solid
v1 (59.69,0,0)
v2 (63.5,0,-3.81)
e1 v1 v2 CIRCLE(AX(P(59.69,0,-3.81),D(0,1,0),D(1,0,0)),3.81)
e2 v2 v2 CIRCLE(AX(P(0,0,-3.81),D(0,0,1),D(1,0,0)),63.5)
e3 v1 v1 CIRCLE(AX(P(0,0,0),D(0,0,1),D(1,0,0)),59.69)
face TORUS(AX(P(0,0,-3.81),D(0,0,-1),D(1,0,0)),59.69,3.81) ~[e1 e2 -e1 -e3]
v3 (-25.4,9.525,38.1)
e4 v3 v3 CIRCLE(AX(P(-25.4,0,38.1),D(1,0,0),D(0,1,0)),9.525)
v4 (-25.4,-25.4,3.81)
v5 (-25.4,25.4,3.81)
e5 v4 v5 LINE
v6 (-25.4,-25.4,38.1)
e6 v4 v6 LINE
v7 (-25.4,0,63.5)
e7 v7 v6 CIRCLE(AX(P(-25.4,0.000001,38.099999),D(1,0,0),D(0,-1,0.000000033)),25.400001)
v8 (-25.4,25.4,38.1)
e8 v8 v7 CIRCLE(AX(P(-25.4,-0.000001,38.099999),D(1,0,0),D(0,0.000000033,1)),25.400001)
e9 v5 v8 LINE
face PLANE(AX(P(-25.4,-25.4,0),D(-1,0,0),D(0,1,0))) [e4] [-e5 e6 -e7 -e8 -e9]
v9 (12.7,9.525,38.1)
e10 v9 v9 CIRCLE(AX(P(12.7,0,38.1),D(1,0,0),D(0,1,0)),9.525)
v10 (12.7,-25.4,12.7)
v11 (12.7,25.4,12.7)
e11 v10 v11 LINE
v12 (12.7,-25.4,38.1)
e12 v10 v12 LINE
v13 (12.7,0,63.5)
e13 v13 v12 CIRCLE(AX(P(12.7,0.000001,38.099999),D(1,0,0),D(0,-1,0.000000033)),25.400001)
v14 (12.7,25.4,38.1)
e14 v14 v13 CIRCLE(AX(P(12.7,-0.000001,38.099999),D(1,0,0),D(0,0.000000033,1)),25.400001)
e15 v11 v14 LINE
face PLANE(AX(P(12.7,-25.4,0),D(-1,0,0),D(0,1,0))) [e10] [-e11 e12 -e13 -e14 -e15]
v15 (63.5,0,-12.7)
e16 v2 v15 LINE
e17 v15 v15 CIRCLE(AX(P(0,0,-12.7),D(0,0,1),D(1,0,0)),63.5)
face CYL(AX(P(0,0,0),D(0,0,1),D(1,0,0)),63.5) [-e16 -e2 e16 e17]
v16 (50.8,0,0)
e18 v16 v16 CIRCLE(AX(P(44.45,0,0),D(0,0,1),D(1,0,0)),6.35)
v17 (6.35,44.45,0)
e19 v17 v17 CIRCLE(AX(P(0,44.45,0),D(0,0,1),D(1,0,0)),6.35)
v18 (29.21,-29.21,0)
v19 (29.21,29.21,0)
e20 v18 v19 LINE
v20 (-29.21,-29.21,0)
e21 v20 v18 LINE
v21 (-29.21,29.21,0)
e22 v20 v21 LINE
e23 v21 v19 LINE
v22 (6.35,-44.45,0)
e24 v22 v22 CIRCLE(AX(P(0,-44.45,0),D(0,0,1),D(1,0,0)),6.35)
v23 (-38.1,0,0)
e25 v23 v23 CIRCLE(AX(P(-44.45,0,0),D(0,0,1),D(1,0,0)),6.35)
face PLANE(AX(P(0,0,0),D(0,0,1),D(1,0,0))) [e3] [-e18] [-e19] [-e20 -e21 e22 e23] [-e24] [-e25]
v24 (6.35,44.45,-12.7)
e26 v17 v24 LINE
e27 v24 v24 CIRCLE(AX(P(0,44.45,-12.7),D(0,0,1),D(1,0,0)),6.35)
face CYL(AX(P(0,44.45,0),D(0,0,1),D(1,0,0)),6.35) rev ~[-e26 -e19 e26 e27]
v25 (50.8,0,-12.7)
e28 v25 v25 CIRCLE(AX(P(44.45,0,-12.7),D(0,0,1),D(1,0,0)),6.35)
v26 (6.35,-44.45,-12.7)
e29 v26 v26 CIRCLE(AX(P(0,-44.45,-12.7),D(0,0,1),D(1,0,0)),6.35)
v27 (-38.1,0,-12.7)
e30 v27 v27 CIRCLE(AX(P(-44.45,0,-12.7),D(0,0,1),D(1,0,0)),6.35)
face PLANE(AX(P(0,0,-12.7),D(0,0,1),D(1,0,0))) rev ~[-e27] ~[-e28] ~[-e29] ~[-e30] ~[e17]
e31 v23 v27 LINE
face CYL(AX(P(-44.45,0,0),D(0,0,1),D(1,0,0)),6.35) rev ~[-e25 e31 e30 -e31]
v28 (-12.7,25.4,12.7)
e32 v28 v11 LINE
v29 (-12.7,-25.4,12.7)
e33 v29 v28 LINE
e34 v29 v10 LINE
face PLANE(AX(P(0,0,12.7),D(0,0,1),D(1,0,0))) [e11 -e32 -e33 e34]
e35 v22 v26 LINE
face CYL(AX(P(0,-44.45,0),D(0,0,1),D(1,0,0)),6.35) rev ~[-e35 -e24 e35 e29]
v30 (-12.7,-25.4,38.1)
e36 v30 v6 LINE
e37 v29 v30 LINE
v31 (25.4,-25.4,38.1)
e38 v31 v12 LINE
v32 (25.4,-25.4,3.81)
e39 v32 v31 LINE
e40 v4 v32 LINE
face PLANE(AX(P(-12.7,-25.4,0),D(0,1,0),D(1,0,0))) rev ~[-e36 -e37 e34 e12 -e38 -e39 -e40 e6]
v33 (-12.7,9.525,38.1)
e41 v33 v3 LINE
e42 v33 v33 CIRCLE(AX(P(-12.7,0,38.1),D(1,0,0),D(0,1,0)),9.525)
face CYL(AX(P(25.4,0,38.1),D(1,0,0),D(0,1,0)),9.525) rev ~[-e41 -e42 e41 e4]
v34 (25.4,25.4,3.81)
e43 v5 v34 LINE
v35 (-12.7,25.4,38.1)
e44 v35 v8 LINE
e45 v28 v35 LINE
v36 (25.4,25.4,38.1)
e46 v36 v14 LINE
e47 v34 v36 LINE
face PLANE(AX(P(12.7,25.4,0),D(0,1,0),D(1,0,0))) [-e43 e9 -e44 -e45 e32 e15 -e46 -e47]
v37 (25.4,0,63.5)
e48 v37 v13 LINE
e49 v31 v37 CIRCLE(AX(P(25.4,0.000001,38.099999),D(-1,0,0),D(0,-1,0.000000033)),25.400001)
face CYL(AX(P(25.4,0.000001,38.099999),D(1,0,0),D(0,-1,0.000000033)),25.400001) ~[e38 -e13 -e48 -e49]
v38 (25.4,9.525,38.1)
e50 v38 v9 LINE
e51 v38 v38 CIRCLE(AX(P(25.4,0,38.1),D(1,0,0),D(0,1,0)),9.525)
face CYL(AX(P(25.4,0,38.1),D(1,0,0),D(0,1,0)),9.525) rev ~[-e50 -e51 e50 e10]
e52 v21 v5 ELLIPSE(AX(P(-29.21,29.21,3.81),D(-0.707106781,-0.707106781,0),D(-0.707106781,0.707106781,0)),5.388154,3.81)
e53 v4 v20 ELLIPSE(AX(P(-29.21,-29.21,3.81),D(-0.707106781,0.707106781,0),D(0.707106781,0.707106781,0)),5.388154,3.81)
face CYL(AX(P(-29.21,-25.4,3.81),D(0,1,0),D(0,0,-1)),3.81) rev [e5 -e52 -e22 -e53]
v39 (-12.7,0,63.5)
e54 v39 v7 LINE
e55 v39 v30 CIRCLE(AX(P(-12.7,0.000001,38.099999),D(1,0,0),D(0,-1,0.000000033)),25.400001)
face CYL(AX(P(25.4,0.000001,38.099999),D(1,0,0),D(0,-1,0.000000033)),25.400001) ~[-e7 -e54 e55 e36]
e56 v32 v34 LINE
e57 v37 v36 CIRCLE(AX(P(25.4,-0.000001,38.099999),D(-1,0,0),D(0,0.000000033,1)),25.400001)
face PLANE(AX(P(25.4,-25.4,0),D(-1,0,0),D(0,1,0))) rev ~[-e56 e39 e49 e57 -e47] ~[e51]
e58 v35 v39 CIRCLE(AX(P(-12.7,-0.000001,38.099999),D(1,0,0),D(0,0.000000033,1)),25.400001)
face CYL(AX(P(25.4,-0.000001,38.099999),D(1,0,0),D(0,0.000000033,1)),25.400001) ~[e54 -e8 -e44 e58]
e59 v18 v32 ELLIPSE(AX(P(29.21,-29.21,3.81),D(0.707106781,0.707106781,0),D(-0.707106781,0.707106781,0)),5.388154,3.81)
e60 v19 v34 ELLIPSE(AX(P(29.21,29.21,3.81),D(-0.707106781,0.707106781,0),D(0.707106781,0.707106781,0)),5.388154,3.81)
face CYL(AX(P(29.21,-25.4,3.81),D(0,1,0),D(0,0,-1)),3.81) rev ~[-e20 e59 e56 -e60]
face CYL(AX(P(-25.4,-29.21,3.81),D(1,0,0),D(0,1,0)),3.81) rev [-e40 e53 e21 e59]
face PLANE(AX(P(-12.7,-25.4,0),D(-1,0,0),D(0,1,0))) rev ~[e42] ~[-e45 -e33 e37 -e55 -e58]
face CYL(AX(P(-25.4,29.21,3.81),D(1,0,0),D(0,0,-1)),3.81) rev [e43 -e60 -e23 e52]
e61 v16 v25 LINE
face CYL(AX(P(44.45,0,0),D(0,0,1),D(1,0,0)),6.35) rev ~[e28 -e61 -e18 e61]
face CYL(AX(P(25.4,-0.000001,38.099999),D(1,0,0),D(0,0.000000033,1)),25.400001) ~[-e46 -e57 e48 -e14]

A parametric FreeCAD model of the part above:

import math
import FreeCAD as App
import Part
import Sketcher
Q = App.Units.Quantity


def edges_at(feature, points):
    """Names of the edges that pass closest to the given points."""
    edges = feature.Shape.Edges
    near = lambda p: min(range(len(edges)), key=lambda i: edges[i].distToShape(Part.Vertex(*p))[0])
    return sorted({f"Edge{near(p) + 1}" for p in points})


def add_polygon(sketch, points):
    """Adds a closed chain of lines whose ends are joined by coincident constraints."""
    first, n = sketch.GeometryCount, len(points)
    for a, b in zip(points, points[1:] + points[:1]):
        sketch.addGeometry(Part.LineSegment(App.Vector(*a, 0), App.Vector(*b, 0)), False)
    for i in range(n):
        sketch.addConstraint(Sketcher.Constraint("Coincident", first + i, 2, first + (i + 1) % n, 1))

doc = App.newDocument("Part")
body = doc.addObject("PartDesign::Body", "Body")

# Sketch on XY plane
sketch1 = body.newObject("Sketcher::SketchObject", "Sketch")
sketch1.AttachmentSupport = (doc.getObject("XY_Plane"), [""])
sketch1.MapMode = "FlatFace"
sketch1.addGeometry(Part.Circle(App.Vector(0, 0, 0), App.Vector(0, 0, 1), 63.5), False)
sketch1.addGeometry(Part.Circle(App.Vector(0, -44.45, 0), App.Vector(0, 0, 1), 6.35), False)
sketch1.addGeometry(Part.Circle(App.Vector(-44.45, 0, 0), App.Vector(0, 0, 1), 6.35), False)
sketch1.addGeometry(Part.Circle(App.Vector(44.45, 0, 0), App.Vector(0, 0, 1), 6.35), False)
sketch1.addGeometry(Part.Circle(App.Vector(0, 44.45, 0), App.Vector(0, 0, 1), 6.35), False)
sketch1.addConstraint(Sketcher.Constraint("Coincident", 0, 3, -1, 1))
sketch1.addConstraint(Sketcher.Constraint("Equal", 1, 2))
sketch1.addConstraint(Sketcher.Constraint("Equal", 2, 3))
sketch1.addConstraint(Sketcher.Constraint("Equal", 3, 4))
sketch1.addConstraint(Sketcher.Constraint("Symmetric", 2, 3, 3, 3, -1, 1))
sketch1.addConstraint(Sketcher.Constraint("Symmetric", 1, 3, 4, 3, -1, 1))
sketch1.addConstraint(Sketcher.Constraint("PointOnObject", 1, 3, -2))
sketch1.addConstraint(Sketcher.Constraint("PointOnObject", 2, 3, -1))
sketch1.addConstraint(Sketcher.Constraint("Diameter", 0, Q("5 in")))
sketch1.addConstraint(Sketcher.Constraint("Diameter", 1, Q("0.5 in")))
sketch1.addConstraint(Sketcher.Constraint("DistanceX", 2, 3, 3, 3, Q("3.5 in")))
sketch1.addConstraint(Sketcher.Constraint("DistanceY", 1, 3, 4, 3, Q("3.5 in")))
pad1 = body.newObject("PartDesign::Pad", "Pad")
pad1.Profile = sketch1
pad1.Length = Q("0.5 in")
pad1.Reversed = True

# Sketch on XY plane
sketch2 = body.newObject("Sketcher::SketchObject", "Sketch001")
sketch2.AttachmentSupport = (doc.getObject("XY_Plane"), [""])
sketch2.MapMode = "FlatFace"
add_polygon(sketch2, [(-25.4, 25.4), (-25.4, -25.4), (-12.7, -25.4), (-12.7, 25.4)])  # lines 0-3
add_polygon(sketch2, [(12.7, 25.4), (12.7, -25.4), (25.4, -25.4), (25.4, 25.4)])  # lines 4-7
sketch2.addConstraint(Sketcher.Constraint("Vertical", 0))
sketch2.addConstraint(Sketcher.Constraint("Horizontal", 1))
sketch2.addConstraint(Sketcher.Constraint("Vertical", 2))
sketch2.addConstraint(Sketcher.Constraint("Horizontal", 3))
sketch2.addConstraint(Sketcher.Constraint("Vertical", 4))
sketch2.addConstraint(Sketcher.Constraint("Horizontal", 5))
sketch2.addConstraint(Sketcher.Constraint("Vertical", 6))
sketch2.addConstraint(Sketcher.Constraint("Horizontal", 7))
sketch2.addConstraint(Sketcher.Constraint("Symmetric", 2, 2, 4, 2, -1, 1))
sketch2.addConstraint(Sketcher.Constraint("Symmetric", 0, 2, 6, 2, -1, 1))
sketch2.addConstraint(Sketcher.Constraint("Horizontal", 1, 2, 4, 2))
sketch2.addConstraint(Sketcher.Constraint("DistanceY", 0, 2, 0, 1, Q("2 in")))
sketch2.addConstraint(Sketcher.Constraint("DistanceX", 1, 1, 1, 2, Q("0.5 in")))
sketch2.addConstraint(Sketcher.Constraint("DistanceX", 0, 2, -1, 1, Q("1 in")))
pad2 = body.newObject("PartDesign::Pad", "Pad001")
pad2.Profile = sketch2
pad2.Length = Q("2.5 in")

# Sketch on XY plane
sketch3 = body.newObject("Sketcher::SketchObject", "Sketch002")
sketch3.AttachmentSupport = (doc.getObject("XY_Plane"), [""])
sketch3.MapMode = "FlatFace"
add_polygon(sketch3, [(-12.7, 25.4), (-12.7, -25.4), (12.7, -25.4), (12.7, 25.4)])  # lines 0-3
sketch3.addConstraint(Sketcher.Constraint("Vertical", 0))
sketch3.addConstraint(Sketcher.Constraint("Horizontal", 1))
sketch3.addConstraint(Sketcher.Constraint("Vertical", 2))
sketch3.addConstraint(Sketcher.Constraint("Horizontal", 3))
sketch3.addConstraint(Sketcher.Constraint("Symmetric", 0, 2, 2, 2, -1, 1))
sketch3.addConstraint(Sketcher.Constraint("DistanceX", 1, 1, 1, 2, Q("1 in")))
sketch3.addConstraint(Sketcher.Constraint("DistanceY", 0, 2, 0, 1, Q("2 in")))
pad3 = body.newObject("PartDesign::Pad", "Pad002")
pad3.Profile = sketch3
pad3.Length = Q("0.5 in")

# Sketch on YZ plane
sketch4 = body.newObject("Sketcher::SketchObject", "Sketch003")
sketch4.AttachmentSupport = (doc.getObject("YZ_Plane"), [""])
sketch4.MapMode = "FlatFace"
sketch4.AttachmentOffset = App.Placement(App.Vector(0, 0, 1 * 25.4), App.Rotation())
sketch4.addGeometry(Part.LineSegment(App.Vector(-25.4, 63.5, 0), App.Vector(-25.4, 38.1, 0)), False)
sketch4.addGeometry(Part.ArcOfCircle(Part.Circle(App.Vector(0.000001, 38.099999, 0), App.Vector(0, 0, 1), 25.400001), math.radians(90.000002), math.radians(179.999998)), False)
sketch4.addGeometry(Part.LineSegment(App.Vector(0, 63.5, 0), App.Vector(-25.4, 63.5, 0)), False)
sketch4.addGeometry(Part.ArcOfCircle(Part.Circle(App.Vector(-0.000001, 38.099999, 0), App.Vector(0, 0, 1), 25.400001), math.radians(0.000002), math.radians(89.999998)), False)
sketch4.addGeometry(Part.LineSegment(App.Vector(25.4, 38.1, 0), App.Vector(25.4, 63.5, 0)), False)
sketch4.addGeometry(Part.LineSegment(App.Vector(25.4, 63.5, 0), App.Vector(0, 63.5, 0)), False)
sketch4.addConstraint(Sketcher.Constraint("Tangent", 0, 2, 1, 2))
sketch4.addConstraint(Sketcher.Constraint("Tangent", 1, 1, 2, 1))
sketch4.addConstraint(Sketcher.Constraint("Coincident", 2, 2, 0, 1))
sketch4.addConstraint(Sketcher.Constraint("Tangent", 3, 1, 4, 1))
sketch4.addConstraint(Sketcher.Constraint("Coincident", 4, 2, 5, 1))
sketch4.addConstraint(Sketcher.Constraint("Tangent", 5, 2, 3, 2))
sketch4.addConstraint(Sketcher.Constraint("Vertical", 0))
sketch4.addConstraint(Sketcher.Constraint("Horizontal", 2))
sketch4.addConstraint(Sketcher.Constraint("Vertical", 4))
sketch4.addConstraint(Sketcher.Constraint("Horizontal", 5))
sketch4.addConstraint(Sketcher.Constraint("Coincident", 3, 3, 1, 3))
sketch4.addConstraint(Sketcher.Constraint("Equal", 1, 3))
sketch4.addConstraint(Sketcher.Constraint("PointOnObject", 1, 3, -2))
sketch4.addConstraint(Sketcher.Constraint("Radius", 1, Q("1 in")))
sketch4.addConstraint(Sketcher.Constraint("DistanceY", -1, 1, 1, 3, Q("1.5 in")))
pocket1 = body.newObject("PartDesign::Pocket", "Pocket")
pocket1.Profile = sketch4
pocket1.Type = "ThroughAll"

# Sketch on YZ plane
sketch5 = body.newObject("Sketcher::SketchObject", "Sketch004")
sketch5.AttachmentSupport = (doc.getObject("YZ_Plane"), [""])
sketch5.MapMode = "FlatFace"
sketch5.AttachmentOffset = App.Placement(App.Vector(0, 0, 1 * 25.4), App.Rotation())
sketch5.addGeometry(Part.Circle(App.Vector(0, 38.1, 0), App.Vector(0, 0, 1), 9.525), False)
sketch5.addConstraint(Sketcher.Constraint("PointOnObject", 0, 3, -2))
sketch5.addConstraint(Sketcher.Constraint("Diameter", 0, Q("0.75 in")))
sketch5.addConstraint(Sketcher.Constraint("DistanceY", -1, 1, 0, 3, Q("1.5 in")))
pocket2 = body.newObject("PartDesign::Pocket", "Pocket001")
pocket2.Profile = sketch5
pocket2.Type = "ThroughAll"
doc.recompute()

fillet = body.newObject("PartDesign::Fillet", "Fillet")
fillet.Base = (pocket2, edges_at(pocket2, [
    (25.4, 0, 0),
    (0, -25.4, 0),
    (-25.4, 0, 0),
    (0, 25.4, 0),
    (-63.5, 0, 0),
]))
fillet.Radius = Q("0.15 in")

doc.recompute()
